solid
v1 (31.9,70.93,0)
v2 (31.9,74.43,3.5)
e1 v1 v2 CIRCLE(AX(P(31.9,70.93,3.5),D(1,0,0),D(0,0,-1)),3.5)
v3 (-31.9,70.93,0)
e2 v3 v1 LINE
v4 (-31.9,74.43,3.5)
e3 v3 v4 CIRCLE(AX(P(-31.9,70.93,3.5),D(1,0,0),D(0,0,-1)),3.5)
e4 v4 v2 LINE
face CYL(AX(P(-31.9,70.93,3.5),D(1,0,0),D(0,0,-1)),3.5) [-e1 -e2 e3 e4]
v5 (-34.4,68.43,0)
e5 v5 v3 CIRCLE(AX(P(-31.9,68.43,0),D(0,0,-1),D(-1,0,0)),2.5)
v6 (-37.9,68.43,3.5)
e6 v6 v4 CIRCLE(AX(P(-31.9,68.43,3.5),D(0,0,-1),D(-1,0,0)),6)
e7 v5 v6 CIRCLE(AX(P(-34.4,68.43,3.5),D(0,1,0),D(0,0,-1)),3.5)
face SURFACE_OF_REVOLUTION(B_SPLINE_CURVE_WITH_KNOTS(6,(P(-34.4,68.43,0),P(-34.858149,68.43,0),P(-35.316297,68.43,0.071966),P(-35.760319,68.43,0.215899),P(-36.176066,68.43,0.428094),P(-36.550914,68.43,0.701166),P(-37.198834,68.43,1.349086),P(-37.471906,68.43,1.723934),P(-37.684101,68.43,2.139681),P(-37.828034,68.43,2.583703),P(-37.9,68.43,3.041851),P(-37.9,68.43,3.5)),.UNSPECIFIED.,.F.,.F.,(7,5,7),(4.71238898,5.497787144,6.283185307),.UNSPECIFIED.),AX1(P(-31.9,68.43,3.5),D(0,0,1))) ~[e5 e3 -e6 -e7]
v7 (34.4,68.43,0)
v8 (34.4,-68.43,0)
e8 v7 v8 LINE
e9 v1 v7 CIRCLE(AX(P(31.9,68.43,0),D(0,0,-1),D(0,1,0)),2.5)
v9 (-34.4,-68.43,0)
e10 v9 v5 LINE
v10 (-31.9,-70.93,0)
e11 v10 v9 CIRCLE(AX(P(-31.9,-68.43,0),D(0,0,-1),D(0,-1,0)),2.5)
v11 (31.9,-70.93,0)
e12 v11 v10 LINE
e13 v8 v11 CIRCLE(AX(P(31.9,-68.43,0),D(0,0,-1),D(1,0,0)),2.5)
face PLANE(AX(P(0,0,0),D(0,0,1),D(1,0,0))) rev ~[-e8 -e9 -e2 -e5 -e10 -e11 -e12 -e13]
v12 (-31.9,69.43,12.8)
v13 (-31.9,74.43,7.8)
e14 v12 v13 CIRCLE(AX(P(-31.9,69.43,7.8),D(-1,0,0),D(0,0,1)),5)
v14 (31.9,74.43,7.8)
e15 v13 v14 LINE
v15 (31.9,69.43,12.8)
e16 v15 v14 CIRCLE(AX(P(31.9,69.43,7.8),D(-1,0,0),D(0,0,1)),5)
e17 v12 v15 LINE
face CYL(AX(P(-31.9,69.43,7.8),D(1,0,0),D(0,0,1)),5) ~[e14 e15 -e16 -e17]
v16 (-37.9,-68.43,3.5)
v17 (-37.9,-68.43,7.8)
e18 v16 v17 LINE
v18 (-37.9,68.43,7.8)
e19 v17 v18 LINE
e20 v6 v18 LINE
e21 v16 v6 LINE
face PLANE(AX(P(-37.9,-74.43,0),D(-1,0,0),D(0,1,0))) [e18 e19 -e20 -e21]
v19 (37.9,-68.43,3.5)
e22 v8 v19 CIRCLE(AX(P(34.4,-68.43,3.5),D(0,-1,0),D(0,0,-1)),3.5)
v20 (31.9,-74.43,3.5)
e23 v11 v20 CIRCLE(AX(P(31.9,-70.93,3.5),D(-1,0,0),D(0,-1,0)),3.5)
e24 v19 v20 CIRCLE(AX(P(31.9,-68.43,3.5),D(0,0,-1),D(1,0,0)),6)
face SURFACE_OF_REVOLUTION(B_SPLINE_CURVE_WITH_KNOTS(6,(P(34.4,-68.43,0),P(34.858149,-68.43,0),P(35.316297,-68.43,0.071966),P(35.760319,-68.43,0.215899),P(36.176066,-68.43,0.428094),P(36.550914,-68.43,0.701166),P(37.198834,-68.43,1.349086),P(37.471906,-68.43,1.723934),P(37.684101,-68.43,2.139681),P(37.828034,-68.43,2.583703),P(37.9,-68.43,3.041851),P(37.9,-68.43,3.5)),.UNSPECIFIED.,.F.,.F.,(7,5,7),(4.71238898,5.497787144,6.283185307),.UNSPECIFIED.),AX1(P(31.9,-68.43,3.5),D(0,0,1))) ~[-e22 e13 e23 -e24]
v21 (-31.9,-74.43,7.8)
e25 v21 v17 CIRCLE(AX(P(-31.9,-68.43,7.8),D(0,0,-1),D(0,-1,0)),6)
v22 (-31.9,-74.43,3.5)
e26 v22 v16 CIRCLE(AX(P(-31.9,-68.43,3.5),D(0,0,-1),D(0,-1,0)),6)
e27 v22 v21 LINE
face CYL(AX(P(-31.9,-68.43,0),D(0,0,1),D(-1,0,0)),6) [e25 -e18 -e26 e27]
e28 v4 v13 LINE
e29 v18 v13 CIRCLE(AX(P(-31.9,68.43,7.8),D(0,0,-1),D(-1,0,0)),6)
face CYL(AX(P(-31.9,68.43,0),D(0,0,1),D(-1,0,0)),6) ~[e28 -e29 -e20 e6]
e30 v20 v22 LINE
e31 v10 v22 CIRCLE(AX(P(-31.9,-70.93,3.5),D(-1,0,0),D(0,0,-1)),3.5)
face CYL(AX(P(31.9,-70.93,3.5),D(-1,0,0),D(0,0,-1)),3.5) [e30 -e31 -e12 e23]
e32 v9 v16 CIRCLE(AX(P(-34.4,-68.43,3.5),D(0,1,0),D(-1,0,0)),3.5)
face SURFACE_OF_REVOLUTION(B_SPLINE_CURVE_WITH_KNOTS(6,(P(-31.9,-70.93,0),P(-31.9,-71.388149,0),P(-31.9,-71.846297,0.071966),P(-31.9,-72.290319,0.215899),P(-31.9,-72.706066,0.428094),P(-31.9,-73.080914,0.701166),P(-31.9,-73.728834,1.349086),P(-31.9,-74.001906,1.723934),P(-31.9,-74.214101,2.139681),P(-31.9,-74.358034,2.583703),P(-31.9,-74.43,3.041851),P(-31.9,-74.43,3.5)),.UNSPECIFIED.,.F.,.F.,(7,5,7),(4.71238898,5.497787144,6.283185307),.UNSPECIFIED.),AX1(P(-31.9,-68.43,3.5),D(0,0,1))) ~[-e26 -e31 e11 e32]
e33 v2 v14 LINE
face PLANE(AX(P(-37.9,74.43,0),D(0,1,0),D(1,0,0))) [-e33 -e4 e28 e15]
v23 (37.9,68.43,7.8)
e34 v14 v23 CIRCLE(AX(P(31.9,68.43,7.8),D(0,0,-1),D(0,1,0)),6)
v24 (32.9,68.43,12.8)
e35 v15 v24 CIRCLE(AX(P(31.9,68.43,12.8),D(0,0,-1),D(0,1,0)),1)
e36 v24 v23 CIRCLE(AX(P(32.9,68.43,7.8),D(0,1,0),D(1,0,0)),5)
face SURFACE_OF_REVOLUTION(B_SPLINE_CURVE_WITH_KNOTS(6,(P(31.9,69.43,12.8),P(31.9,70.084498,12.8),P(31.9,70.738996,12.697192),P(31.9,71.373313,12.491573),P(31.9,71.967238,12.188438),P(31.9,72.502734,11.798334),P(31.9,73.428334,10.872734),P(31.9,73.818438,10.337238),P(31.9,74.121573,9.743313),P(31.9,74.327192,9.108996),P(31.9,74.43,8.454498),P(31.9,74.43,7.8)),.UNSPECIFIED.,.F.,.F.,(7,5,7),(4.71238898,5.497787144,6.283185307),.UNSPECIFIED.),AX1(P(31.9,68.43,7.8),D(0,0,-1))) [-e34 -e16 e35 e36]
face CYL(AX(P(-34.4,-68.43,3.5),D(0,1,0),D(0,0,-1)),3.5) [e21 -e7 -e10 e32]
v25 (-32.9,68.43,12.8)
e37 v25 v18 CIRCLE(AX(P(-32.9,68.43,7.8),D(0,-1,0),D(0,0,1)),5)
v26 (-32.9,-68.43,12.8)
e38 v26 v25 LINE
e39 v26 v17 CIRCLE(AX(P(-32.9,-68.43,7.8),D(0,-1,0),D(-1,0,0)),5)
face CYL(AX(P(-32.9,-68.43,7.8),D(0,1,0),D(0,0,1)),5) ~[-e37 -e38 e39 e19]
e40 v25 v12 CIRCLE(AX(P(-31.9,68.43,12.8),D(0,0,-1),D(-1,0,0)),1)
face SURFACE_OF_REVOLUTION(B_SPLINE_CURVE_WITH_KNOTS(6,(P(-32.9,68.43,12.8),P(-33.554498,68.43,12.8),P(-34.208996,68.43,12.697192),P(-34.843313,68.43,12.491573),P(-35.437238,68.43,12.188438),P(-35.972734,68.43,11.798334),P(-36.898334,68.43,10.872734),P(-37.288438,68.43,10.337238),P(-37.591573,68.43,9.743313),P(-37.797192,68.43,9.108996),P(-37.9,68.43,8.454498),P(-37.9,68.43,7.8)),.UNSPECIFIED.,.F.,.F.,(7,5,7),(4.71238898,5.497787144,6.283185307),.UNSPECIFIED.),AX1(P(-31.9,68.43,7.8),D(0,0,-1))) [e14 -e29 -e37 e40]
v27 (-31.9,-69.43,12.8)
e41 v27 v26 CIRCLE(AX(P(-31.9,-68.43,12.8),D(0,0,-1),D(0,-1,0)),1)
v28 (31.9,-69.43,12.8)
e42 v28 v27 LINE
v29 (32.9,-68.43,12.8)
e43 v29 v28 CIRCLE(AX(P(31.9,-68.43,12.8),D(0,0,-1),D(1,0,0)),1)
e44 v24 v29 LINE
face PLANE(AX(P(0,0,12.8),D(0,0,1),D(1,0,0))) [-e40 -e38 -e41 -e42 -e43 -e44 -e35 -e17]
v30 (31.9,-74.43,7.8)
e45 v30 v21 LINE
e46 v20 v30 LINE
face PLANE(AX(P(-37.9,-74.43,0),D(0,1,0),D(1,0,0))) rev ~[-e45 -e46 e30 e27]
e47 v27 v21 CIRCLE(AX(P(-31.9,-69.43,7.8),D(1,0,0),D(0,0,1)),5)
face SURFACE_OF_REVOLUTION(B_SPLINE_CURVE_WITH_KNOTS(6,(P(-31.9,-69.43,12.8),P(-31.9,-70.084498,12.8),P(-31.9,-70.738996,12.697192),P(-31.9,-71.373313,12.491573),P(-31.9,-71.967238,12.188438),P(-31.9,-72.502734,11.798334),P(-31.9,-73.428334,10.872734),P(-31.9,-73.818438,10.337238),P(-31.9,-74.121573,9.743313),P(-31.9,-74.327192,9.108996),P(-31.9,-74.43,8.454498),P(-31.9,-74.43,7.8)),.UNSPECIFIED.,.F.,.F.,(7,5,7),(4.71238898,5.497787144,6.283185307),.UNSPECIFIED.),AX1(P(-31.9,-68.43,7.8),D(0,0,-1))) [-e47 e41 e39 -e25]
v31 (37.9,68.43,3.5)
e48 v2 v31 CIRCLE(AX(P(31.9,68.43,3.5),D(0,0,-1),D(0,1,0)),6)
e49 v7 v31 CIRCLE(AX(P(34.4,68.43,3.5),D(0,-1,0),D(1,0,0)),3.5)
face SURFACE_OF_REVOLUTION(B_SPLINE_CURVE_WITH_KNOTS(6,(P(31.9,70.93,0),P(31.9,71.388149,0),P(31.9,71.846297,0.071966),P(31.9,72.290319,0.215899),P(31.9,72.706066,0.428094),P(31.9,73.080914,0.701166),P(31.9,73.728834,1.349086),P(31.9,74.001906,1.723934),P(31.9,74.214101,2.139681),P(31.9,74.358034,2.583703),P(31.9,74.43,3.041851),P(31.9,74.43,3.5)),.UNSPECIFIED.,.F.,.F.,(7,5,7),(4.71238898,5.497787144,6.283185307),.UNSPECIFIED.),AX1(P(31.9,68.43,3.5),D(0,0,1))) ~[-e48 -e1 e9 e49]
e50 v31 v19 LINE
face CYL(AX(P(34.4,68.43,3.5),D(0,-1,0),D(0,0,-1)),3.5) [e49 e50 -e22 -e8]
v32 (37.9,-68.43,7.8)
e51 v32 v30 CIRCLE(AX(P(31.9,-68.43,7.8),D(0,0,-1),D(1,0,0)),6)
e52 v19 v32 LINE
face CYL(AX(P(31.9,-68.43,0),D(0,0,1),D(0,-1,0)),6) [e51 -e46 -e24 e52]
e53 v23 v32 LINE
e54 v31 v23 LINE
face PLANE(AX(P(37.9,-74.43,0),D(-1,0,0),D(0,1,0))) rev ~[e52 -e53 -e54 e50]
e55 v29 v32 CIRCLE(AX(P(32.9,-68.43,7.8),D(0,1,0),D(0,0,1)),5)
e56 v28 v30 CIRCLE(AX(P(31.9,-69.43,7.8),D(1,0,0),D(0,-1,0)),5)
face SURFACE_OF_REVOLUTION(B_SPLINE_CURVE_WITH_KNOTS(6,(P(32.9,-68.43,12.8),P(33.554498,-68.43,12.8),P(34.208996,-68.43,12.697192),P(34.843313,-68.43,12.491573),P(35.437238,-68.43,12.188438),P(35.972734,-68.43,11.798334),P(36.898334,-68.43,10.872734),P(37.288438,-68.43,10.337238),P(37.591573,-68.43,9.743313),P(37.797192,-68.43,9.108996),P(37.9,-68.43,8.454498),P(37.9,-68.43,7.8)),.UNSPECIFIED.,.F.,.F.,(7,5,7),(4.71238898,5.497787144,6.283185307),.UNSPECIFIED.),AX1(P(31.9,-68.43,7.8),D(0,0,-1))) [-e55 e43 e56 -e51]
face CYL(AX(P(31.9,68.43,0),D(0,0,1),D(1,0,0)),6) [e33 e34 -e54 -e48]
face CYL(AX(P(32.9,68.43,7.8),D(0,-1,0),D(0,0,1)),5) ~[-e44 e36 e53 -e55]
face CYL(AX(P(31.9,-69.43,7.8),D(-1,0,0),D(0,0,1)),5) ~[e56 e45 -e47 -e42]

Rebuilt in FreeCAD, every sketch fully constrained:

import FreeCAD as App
import Part
import Sketcher


def edges_at(feature, points):
    """Names of the edges that pass closest to the given points."""
    edges = feature.Shape.Edges
    near = lambda p: min(range(len(edges)), key=lambda i: edges[i].distToShape(Part.Vertex(*p))[0])
    return sorted({f"Edge{near(p) + 1}" for p in points})

doc = App.newDocument("Part")
body = doc.addObject("PartDesign::Body", "Body")

# Sketch on XY plane
sketch1 = body.newObject("Sketcher::SketchObject", "Sketch")
sketch1.AttachmentSupport = (doc.getObject("XY_Plane"), [""])
sketch1.MapMode = "FlatFace"
sketch1.addGeometry(Part.LineSegment(App.Vector(-38, 74, 0), App.Vector(-38, -74, 0)), False)
sketch1.addGeometry(Part.LineSegment(App.Vector(-38, -74, 0), App.Vector(38, -74, 0)), False)
sketch1.addGeometry(Part.LineSegment(App.Vector(38, -74, 0), App.Vector(38, 74, 0)), False)
sketch1.addGeometry(Part.LineSegment(App.Vector(38, 74, 0), App.Vector(-38, 74, 0)), False)
sketch1.addConstraint(Sketcher.Constraint("Coincident", 0, 2, 1, 1))
sketch1.addConstraint(Sketcher.Constraint("Coincident", 1, 2, 2, 1))
sketch1.addConstraint(Sketcher.Constraint("Coincident", 2, 2, 3, 1))
sketch1.addConstraint(Sketcher.Constraint("Coincident", 3, 2, 0, 1))
sketch1.addConstraint(Sketcher.Constraint("Vertical", 0))
sketch1.addConstraint(Sketcher.Constraint("Horizontal", 1))
sketch1.addConstraint(Sketcher.Constraint("Vertical", 2))
sketch1.addConstraint(Sketcher.Constraint("Horizontal", 3))
sketch1.addConstraint(Sketcher.Constraint("Symmetric", 0, 2, 2, 2, -1, 1))
sketch1.addConstraint(Sketcher.Constraint("DistanceX", 1, 1, 1, 2, 75.8))
sketch1.addConstraint(Sketcher.Constraint("DistanceY", 0, 2, 0, 1, 148.86))
pad1 = body.newObject("PartDesign::Pad", "Pad")
pad1.Profile = sketch1
pad1.Length = 12.8
doc.recompute()

fillet = body.newObject("PartDesign::Fillet", "Fillet")
fillet.Base = (pad1, edges_at(pad1, [
    (37.9, 74.43, 6.4),
    (-37.9, 74.43, 6.4),
    (-37.9, -74.43, 6.4),
    (37.9, -74.43, 6.4),
]))
fillet.Radius = 6
doc.recompute()

fillet2 = body.newObject("PartDesign::Fillet", "Fillet001")
fillet2.Base = (fillet, edges_at(fillet, [(0, 74.43, 0)]))
fillet2.Radius = 3.5
doc.recompute()

fillet3 = body.newObject("PartDesign::Fillet", "Fillet002")
fillet3.Base = (fillet2, edges_at(fillet2, [(0, 74.43, 12.8)]))
fillet3.Radius = 5

doc.recompute()
